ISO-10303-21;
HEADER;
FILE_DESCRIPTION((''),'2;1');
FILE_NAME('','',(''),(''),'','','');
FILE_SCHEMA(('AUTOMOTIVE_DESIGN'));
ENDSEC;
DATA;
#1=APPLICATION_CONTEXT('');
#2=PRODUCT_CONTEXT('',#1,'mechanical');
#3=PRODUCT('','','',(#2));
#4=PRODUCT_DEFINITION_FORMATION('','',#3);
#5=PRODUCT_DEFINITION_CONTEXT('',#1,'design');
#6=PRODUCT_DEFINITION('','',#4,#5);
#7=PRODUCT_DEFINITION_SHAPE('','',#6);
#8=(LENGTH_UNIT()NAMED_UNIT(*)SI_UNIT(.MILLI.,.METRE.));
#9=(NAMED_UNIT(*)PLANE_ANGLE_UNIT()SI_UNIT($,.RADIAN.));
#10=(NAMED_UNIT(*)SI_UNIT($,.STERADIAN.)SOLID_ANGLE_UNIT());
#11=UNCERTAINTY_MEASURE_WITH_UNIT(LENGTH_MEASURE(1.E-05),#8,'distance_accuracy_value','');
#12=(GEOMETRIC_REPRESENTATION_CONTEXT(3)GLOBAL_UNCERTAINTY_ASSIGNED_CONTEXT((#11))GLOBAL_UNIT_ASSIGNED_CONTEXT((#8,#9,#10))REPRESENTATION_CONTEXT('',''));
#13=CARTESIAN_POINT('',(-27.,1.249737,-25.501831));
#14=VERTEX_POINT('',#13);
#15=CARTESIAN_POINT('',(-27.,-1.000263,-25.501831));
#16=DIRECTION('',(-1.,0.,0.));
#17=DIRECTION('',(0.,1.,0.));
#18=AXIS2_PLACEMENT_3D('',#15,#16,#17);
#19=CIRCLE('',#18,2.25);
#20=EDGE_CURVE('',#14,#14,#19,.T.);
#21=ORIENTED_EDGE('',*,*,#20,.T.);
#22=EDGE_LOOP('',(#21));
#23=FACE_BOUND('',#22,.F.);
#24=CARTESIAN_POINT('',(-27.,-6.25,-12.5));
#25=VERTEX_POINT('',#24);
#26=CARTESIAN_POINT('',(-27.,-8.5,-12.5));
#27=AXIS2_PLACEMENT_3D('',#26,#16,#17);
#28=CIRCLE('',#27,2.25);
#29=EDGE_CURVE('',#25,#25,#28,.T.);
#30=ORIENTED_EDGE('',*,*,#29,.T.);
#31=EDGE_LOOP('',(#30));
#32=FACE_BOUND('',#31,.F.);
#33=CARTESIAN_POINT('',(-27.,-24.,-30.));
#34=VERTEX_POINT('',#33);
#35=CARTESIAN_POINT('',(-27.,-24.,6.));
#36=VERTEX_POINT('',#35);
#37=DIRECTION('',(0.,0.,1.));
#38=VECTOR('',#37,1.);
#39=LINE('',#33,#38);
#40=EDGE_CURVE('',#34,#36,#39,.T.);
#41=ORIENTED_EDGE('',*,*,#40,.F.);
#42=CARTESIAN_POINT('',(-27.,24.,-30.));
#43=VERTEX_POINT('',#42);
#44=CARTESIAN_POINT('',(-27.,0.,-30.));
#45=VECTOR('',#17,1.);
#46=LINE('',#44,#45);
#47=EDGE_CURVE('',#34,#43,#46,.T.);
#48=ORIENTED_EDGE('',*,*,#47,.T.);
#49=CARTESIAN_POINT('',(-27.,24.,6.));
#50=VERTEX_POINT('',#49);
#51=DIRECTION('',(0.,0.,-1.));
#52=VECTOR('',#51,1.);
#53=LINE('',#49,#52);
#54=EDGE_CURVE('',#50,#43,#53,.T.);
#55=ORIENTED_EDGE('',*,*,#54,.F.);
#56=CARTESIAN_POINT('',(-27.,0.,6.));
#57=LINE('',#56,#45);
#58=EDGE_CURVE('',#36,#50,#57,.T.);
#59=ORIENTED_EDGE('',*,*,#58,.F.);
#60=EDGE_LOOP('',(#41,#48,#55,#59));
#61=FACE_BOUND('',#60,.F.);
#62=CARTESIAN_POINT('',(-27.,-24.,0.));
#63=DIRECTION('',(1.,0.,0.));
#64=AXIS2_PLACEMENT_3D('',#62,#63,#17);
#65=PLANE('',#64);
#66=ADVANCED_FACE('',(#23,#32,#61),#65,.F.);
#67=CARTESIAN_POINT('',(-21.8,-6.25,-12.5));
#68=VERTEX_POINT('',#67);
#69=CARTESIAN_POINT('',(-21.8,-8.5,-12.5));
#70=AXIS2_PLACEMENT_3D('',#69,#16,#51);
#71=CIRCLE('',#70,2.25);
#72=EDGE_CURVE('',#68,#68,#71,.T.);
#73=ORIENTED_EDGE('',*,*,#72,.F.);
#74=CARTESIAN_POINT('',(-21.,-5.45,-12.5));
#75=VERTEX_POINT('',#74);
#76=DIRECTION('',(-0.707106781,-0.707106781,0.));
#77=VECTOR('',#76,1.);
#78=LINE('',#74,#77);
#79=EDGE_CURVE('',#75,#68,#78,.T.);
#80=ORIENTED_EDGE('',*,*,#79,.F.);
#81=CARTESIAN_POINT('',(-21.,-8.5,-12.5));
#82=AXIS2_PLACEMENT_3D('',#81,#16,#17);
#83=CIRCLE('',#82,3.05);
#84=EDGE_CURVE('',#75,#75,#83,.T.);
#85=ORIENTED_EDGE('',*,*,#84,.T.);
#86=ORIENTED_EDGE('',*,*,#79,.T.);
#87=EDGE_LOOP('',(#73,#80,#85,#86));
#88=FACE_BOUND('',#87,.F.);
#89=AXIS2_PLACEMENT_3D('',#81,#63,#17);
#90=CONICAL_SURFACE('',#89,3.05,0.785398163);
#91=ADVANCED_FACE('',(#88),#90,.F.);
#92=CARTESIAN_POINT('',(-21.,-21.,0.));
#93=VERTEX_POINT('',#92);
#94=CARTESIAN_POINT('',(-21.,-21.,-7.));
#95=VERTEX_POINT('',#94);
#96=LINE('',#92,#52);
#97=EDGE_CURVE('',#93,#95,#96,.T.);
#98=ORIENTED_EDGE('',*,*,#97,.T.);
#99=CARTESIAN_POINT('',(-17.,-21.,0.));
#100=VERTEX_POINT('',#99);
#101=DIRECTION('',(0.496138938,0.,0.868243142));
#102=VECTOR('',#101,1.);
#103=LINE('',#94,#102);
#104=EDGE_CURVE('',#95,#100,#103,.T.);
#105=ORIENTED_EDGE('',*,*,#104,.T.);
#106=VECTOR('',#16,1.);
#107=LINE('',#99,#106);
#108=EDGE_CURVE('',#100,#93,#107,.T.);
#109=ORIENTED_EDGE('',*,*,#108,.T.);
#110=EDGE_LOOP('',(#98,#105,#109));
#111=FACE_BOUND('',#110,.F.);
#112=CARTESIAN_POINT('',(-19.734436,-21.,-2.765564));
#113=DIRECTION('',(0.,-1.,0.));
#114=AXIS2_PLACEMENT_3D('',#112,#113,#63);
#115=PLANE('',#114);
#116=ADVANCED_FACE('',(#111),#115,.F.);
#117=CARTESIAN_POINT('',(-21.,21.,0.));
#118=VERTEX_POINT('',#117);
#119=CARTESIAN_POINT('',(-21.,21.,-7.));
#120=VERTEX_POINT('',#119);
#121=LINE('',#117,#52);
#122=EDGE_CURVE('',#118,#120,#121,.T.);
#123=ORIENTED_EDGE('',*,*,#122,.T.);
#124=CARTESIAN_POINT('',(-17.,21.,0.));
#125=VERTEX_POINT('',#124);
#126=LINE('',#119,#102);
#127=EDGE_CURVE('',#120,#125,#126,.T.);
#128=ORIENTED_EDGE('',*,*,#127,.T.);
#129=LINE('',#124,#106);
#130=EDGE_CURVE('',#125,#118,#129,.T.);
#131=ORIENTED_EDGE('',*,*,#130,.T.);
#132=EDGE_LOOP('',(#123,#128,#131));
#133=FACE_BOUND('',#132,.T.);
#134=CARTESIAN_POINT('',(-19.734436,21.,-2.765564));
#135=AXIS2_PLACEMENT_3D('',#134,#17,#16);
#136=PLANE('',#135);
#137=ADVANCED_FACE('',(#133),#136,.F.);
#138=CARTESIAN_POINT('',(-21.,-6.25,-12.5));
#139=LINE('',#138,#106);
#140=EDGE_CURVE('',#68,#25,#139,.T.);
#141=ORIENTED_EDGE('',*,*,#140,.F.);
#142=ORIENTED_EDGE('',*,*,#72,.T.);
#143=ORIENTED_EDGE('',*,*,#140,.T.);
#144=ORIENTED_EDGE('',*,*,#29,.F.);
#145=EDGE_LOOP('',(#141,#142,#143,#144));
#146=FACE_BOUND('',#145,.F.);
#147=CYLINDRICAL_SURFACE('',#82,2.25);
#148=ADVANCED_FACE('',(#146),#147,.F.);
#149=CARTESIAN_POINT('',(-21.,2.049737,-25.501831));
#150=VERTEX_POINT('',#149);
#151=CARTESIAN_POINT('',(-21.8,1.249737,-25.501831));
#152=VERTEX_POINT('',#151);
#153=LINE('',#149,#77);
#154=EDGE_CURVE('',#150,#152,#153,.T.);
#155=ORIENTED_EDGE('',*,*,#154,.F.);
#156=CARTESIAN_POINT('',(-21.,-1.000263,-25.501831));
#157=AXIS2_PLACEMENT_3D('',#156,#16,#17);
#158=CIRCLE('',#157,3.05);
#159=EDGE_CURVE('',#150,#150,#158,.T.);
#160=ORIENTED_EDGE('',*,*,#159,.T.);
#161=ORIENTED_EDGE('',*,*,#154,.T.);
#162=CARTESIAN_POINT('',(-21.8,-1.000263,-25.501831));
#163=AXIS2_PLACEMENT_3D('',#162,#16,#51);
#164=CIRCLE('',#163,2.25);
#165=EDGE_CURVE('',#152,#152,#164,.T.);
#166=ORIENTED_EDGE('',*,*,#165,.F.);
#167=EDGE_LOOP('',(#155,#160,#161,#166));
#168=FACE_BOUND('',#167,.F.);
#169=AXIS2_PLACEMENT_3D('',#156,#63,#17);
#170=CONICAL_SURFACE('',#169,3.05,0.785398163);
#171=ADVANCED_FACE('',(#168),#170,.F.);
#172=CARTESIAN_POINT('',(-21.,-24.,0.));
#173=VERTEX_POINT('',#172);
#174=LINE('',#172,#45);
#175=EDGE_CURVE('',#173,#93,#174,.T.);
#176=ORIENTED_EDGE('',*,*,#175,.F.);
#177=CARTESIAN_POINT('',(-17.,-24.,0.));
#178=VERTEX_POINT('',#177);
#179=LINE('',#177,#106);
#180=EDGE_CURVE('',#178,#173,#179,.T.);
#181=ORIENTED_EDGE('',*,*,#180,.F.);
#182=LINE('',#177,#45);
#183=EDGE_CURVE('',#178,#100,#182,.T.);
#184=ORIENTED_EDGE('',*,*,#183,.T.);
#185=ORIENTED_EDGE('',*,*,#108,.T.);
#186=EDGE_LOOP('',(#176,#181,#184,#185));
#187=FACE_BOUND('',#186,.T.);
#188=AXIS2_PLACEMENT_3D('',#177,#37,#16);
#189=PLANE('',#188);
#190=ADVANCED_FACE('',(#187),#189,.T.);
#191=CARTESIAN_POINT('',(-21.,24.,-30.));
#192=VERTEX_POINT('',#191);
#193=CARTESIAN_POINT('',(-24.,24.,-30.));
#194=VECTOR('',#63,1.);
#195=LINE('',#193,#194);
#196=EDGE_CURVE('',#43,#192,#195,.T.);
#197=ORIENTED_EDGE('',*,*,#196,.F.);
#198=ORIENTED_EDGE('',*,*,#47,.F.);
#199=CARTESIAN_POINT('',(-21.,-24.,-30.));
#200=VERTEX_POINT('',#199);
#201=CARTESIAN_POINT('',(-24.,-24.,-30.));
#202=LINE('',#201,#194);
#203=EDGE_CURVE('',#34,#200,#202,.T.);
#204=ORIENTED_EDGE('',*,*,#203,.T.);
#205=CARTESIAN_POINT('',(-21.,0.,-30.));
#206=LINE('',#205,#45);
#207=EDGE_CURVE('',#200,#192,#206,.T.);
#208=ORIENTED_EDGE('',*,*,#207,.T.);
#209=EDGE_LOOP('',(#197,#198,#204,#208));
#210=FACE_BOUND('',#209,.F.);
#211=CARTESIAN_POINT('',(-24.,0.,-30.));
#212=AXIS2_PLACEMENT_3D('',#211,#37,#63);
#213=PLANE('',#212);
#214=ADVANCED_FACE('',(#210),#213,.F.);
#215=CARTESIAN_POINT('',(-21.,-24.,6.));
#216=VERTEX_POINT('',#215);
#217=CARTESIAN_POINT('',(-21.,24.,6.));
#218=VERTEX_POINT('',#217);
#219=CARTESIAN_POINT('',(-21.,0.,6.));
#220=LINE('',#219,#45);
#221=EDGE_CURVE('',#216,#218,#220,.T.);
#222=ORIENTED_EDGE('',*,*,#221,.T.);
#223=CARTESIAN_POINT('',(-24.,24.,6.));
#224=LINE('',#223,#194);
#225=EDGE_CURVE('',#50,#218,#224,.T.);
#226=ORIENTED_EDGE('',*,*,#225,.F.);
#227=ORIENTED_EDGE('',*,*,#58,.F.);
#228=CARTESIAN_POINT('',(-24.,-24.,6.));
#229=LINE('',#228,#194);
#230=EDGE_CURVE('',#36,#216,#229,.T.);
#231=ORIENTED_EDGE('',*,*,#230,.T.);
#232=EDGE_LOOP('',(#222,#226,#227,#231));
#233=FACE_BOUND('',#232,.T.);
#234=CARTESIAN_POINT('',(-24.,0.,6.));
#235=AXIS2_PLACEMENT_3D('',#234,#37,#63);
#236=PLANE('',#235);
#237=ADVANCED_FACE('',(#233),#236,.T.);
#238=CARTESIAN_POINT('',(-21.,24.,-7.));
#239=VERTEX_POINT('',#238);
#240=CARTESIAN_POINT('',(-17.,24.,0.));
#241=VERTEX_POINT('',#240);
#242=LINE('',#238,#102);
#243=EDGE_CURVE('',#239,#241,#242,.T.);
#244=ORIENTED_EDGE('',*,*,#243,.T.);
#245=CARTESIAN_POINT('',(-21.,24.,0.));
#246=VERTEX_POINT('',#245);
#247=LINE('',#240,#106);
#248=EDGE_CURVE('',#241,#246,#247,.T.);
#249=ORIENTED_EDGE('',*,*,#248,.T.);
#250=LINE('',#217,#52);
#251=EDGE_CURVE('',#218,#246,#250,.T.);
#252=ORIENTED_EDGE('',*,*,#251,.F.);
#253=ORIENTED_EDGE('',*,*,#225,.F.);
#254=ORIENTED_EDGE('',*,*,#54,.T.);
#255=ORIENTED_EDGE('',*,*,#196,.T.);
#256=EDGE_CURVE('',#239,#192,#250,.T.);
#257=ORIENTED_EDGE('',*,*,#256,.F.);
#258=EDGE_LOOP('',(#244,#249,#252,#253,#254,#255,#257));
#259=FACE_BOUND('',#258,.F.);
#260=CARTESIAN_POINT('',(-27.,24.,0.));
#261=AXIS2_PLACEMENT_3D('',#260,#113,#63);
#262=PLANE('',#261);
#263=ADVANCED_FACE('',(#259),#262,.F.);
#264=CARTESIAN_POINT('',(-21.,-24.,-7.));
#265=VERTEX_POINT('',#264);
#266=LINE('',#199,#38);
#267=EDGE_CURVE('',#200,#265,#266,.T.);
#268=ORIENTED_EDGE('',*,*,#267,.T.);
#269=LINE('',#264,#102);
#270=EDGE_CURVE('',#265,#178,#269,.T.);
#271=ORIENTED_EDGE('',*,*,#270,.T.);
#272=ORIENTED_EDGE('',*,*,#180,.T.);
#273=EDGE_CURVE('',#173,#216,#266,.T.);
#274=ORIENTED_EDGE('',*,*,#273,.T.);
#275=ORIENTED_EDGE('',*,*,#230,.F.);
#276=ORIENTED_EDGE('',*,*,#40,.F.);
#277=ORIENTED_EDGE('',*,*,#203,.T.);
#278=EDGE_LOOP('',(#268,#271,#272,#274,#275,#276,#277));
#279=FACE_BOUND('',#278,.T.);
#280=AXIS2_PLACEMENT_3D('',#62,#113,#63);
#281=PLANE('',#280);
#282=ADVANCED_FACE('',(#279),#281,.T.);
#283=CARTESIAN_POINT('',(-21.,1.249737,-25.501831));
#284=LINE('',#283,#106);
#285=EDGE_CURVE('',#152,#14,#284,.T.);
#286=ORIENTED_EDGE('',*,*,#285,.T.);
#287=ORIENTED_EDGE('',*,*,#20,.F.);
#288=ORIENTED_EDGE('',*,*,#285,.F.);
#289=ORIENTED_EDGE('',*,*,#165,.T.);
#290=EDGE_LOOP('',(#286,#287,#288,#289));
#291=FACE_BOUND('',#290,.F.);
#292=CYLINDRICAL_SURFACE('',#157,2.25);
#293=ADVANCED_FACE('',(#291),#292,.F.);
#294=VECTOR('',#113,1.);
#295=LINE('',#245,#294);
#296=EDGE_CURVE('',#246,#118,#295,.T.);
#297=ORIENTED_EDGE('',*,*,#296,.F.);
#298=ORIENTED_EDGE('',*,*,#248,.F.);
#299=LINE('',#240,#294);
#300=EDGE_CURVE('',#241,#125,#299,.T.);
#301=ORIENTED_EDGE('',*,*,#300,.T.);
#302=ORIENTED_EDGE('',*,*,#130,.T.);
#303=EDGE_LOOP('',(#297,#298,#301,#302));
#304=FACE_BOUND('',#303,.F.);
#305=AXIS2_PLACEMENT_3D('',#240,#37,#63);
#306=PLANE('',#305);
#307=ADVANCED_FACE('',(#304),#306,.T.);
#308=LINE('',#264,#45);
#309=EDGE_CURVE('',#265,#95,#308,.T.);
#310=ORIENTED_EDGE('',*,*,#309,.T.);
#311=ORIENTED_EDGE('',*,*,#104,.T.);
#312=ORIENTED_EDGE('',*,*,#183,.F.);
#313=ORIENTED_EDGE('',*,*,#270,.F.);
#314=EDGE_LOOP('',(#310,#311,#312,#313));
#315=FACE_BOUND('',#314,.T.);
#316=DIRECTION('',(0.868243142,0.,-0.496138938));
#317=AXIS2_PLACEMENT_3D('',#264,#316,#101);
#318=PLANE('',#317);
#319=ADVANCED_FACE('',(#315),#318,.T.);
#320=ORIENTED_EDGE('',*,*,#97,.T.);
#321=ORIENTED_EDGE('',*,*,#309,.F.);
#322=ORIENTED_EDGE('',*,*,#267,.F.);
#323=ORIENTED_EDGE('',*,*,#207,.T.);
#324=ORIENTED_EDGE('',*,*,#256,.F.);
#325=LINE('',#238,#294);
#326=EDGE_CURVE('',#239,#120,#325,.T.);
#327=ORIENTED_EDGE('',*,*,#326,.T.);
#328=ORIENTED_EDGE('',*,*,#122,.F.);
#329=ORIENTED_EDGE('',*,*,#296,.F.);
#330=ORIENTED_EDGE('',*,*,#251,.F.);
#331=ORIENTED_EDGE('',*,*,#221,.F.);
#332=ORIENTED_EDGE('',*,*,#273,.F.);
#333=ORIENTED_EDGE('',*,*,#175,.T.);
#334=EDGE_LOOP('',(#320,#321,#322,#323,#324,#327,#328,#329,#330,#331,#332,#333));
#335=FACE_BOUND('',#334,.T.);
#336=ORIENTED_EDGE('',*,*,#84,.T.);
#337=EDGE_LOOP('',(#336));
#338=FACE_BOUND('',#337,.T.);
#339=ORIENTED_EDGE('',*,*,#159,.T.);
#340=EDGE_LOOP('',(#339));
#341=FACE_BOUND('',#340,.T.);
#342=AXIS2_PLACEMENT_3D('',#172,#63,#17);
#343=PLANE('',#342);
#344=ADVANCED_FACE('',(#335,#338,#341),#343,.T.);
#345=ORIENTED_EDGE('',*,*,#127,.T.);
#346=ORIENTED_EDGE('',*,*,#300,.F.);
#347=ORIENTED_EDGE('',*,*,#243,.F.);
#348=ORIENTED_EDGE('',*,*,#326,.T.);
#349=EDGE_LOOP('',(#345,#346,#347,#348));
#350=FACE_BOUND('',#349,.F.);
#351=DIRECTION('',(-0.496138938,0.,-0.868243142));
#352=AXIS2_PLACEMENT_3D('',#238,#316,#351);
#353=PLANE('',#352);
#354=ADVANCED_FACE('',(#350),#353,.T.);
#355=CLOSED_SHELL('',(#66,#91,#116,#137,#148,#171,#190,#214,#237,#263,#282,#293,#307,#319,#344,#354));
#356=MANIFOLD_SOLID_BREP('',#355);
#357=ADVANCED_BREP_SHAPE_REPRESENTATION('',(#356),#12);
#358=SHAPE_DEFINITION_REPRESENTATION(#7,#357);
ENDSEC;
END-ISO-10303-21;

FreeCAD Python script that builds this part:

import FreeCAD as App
import Part
import Sketcher
from FreeCAD import Vector


def add_polygon(sketch, points):
    """Adds a closed chain of lines whose ends are joined by coincident constraints."""
    first, n = sketch.GeometryCount, len(points)
    for a, b in zip(points, points[1:] + points[:1]):
        sketch.addGeometry(Part.LineSegment(App.Vector(*a, 0), App.Vector(*b, 0)), False)
    for i in range(n):
        sketch.addConstraint(Sketcher.Constraint("Coincident", first + i, 2, first + (i + 1) % n, 1))

doc = App.newDocument("Part")
params = doc.addObject("Spreadsheet::Sheet", "Params")
for row, (alias, value) in enumerate([
    ("sketch1_width", "6 mm"),
    ("sketch1_height", "48 mm"),
    ("pad1_length", "6 mm"),
    ("pad1_length2", "30 mm"),
    ("sketch2_width", "4 mm"),
    ("sketch2_height", "7 mm"),
    ("pad2_length", "3 mm"),
    ("sketch3_diameter", "4.5 mm"),
    ("hole_diameter", "4.5 mm"),
    ("hole_depth", "25 mm"),
    ("hole_csink_diameter", "6.1 mm"),
], start=1):
    params.set(f"A{row}", alias)
    params.set(f"B{row}", "=" + value)
    params.setAlias(f"B{row}", alias)

body = doc.addObject("PartDesign::Body", "Body")

# Sketch on XY plane
sketch1 = body.newObject("Sketcher::SketchObject", "Sketch")
sketch1.AttachmentSupport = (doc.getObject("XY_Plane"), [""])
sketch1.MapMode = "FlatFace"
add_polygon(sketch1, [(-27, 24), (-27, -24), (-21, -24), (-21, 24)])  # lines 0-3
sketch1.addConstraint(Sketcher.Constraint("Vertical", 0))
sketch1.addConstraint(Sketcher.Constraint("Horizontal", 1))
sketch1.addConstraint(Sketcher.Constraint("Vertical", 2))
sketch1.addConstraint(Sketcher.Constraint("Horizontal", 3))
sketch1.addConstraint(Sketcher.Constraint("DistanceX", 1, 1, 1, 2, 6.0))
sketch1.addConstraint(Sketcher.Constraint("DistanceY", 0, 2, 0, 1, 48.0))
sketch1.addConstraint(Sketcher.Constraint("DistanceX", 0, 2, -1, 1, 27.0))
sketch1.addConstraint(Sketcher.Constraint("DistanceY", 0, 2, -1, 1, 24.0))
sketch1.setExpression("Constraints[8]", "Params.sketch1_width")
sketch1.setExpression("Constraints[9]", "Params.sketch1_height")
pad1 = body.newObject("PartDesign::Pad", "Pad")
pad1.Profile = sketch1
pad1.Type = "TwoLengths"
pad1.setExpression("Length", "Params.pad1_length")
pad1.setExpression("Length2", "Params.pad1_length2")

# Sketch on XZ plane
sketch2 = body.newObject("Sketcher::SketchObject", "Sketch001")
sketch2.AttachmentSupport = (doc.getObject("XZ_Plane"), [""])
sketch2.MapMode = "FlatFace"
sketch2.AttachmentOffset = App.Placement(Vector(0, 0, 24), App.Rotation())
add_polygon(sketch2, [(-21, 0), (-21, -7), (-17, 0)])  # lines 0-2
sketch2.addConstraint(Sketcher.Constraint("Vertical", 0))
sketch2.addConstraint(Sketcher.Constraint("Horizontal", 2))
sketch2.addConstraint(Sketcher.Constraint("PointOnObject", 1, 2, -1))
sketch2.addConstraint(Sketcher.Constraint("DistanceX", 2, 2, 2, 1, 4.0))
sketch2.addConstraint(Sketcher.Constraint("DistanceY", 0, 2, 0, 1, 7.0))
sketch2.addConstraint(Sketcher.Constraint("DistanceX", 0, 2, -1, 1, 21.0))
sketch2.setExpression("Constraints[6]", "Params.sketch2_width")
sketch2.setExpression("Constraints[7]", "Params.sketch2_height")
pad2 = body.newObject("PartDesign::Pad", "Pad001")
pad2.Profile = sketch2
pad2.setExpression("Length", "Params.pad2_length")
pad2.Reversed = True
doc.recompute()

mirrored = body.newObject("PartDesign::Mirrored", "Mirrored")
mirrored.Originals = [pad2]
mirrored.MirrorPlane = (doc.getObject("XZ_Plane"), [""])
body.Tip = mirrored

# Sketch on YZ plane
sketch3 = body.newObject("Sketcher::SketchObject", "Sketch002")
sketch3.AttachmentSupport = (doc.getObject("YZ_Plane"), [""])
sketch3.MapMode = "FlatFace"
sketch3.AttachmentOffset = App.Placement(Vector(0, 0, -21), App.Rotation())
sketch3.addGeometry(Part.Circle(Vector(-1, -25.5, 0), Vector(0, 0, 1), 2.2), False)
sketch3.addGeometry(Part.Circle(Vector(-8.5, -12.5, 0), Vector(0, 0, 1), 2.2), False)
sketch3.addConstraint(Sketcher.Constraint("Equal", 0, 1))
sketch3.addConstraint(Sketcher.Constraint("Diameter", 0, 4.5))
sketch3.addConstraint(Sketcher.Constraint("DistanceX", 1, 3, -1, 1, 8.5))
sketch3.addConstraint(Sketcher.Constraint("DistanceY", 1, 3, -1, 1, 12.5))
sketch3.addConstraint(Sketcher.Constraint("DistanceY", 0, 3, -1, 1, 25.501831))
sketch3.addConstraint(Sketcher.Constraint("DistanceX", 0, 3, -1, 1, 1.000263))
sketch3.setExpression("Constraints[1]", "Params.sketch3_diameter")
doc.recompute()
hole = body.newObject("PartDesign::Hole", "Hole")
hole.Profile = sketch3
hole.ThreadType = "None"
hole.setExpression("Diameter", "Params.hole_diameter")
hole.DepthType = "Dimension"
hole.setExpression("Depth", "Params.hole_depth")
hole.DrillPoint = "Flat"
hole.HoleCutType = "Countersink"
hole.setExpression("HoleCutDiameter", "Params.hole_csink_diameter")
hole.HoleCutCountersinkAngle = 90

doc.recompute()
